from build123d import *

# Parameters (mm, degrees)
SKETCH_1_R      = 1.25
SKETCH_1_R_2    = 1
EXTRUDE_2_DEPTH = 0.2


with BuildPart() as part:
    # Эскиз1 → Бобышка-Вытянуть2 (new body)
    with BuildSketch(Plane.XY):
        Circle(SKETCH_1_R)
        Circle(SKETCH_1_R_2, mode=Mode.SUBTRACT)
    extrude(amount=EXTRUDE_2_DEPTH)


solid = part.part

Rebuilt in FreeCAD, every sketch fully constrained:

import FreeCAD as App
import Part
import Sketcher
from FreeCAD import Vector

doc = App.newDocument("Part")
params = doc.addObject("Spreadsheet::Sheet", "Params")
for row, (alias, value) in enumerate([
    ("sketch1_diameter", "2 mm"),
    ("sketch1_diameter2", "2.5 mm"),
    ("pad1_length", "0.2 mm"),
], start=1):
    params.set(f"A{row}", alias)
    params.set(f"B{row}", "=" + value)
    params.setAlias(f"B{row}", alias)

body = doc.addObject("PartDesign::Body", "Body")

# Sketch on XY plane
sketch1 = body.newObject("Sketcher::SketchObject", "Sketch")
sketch1.AttachmentSupport = (doc.getObject("XY_Plane"), [""])
sketch1.MapMode = "FlatFace"
sketch1.addGeometry(Part.Circle(Vector(0, 0, 0), Vector(0, 0, 1), 1.2), False)
sketch1.addGeometry(Part.Circle(Vector(0, 0, 0), Vector(0, 0, 1), 1), False)
sketch1.addConstraint(Sketcher.Constraint("Coincident", 0, 3, -1, 1))
sketch1.addConstraint(Sketcher.Constraint("Coincident", 1, 3, -1, 1))
sketch1.addConstraint(Sketcher.Constraint("Diameter", 1, 2.0))
sketch1.addConstraint(Sketcher.Constraint("Diameter", 0, 2.5))
sketch1.setExpression("Constraints[2]", "Params.sketch1_diameter")
sketch1.setExpression("Constraints[3]", "Params.sketch1_diameter2")
pad1 = body.newObject("PartDesign::Pad", "Pad")
pad1.Profile = sketch1
pad1.setExpression("Length", "Params.pad1_length")

doc.recompute()
